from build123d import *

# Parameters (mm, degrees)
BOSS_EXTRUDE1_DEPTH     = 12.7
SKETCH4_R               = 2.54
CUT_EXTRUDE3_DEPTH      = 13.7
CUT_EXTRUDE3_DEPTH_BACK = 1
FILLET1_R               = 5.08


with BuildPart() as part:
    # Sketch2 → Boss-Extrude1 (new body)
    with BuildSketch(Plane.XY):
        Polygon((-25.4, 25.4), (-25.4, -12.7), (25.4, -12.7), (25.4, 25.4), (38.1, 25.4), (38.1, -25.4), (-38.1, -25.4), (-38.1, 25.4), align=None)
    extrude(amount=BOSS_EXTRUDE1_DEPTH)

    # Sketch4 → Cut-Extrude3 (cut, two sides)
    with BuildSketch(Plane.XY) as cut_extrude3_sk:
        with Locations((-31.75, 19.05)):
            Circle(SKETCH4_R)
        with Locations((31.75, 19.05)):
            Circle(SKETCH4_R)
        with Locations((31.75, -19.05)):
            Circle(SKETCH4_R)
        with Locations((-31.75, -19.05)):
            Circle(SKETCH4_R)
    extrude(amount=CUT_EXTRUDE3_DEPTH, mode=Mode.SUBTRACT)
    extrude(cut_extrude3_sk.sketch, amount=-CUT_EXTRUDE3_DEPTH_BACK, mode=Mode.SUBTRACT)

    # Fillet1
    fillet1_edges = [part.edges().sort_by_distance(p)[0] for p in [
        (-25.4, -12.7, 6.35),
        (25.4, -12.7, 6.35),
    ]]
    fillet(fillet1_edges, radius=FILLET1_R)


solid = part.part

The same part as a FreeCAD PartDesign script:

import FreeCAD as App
import Part
import Sketcher
from FreeCAD import Vector
Q = App.Units.Quantity


def edges_at(feature, points):
    """Names of the edges that pass closest to the given points."""
    edges = feature.Shape.Edges
    near = lambda p: min(range(len(edges)), key=lambda i: edges[i].distToShape(Part.Vertex(*p))[0])
    return sorted({f"Edge{near(p) + 1}" for p in points})


def add_polygon(sketch, points):
    """Adds a closed chain of lines whose ends are joined by coincident constraints."""
    first, n = sketch.GeometryCount, len(points)
    for a, b in zip(points, points[1:] + points[:1]):
        sketch.addGeometry(Part.LineSegment(App.Vector(*a, 0), App.Vector(*b, 0)), False)
    for i in range(n):
        sketch.addConstraint(Sketcher.Constraint("Coincident", first + i, 2, first + (i + 1) % n, 1))

doc = App.newDocument("Part")
body = doc.addObject("PartDesign::Body", "Body")

sketch1 = body.newObject("Sketcher::SketchObject", "Sketch")
sketch1.AttachmentSupport = (doc.getObject("XY_Plane"), [""])
sketch1.MapMode = "FlatFace"
add_polygon(sketch1, [(-25, -13), (-25, 25), (-38, 25), (-38, -25), (38, -25), (38, 25), (25, 25), (25, -13)])
sketch1.addConstraint([
    Sketcher.Constraint("Vertical", 0),
    Sketcher.Constraint("Horizontal", 1),
    Sketcher.Constraint("Vertical", 2),
    Sketcher.Constraint("Horizontal", 3),
    Sketcher.Constraint("Vertical", 4),
    Sketcher.Constraint("Horizontal", 5),
    Sketcher.Constraint("Vertical", 6),
    Sketcher.Constraint("Horizontal", 7),
    Sketcher.Constraint("Symmetric", 1, 2, 3, 2, -1, 1),
    Sketcher.Constraint("Symmetric", 0, 2, 5, 2, -2),
    Sketcher.Constraint("Equal", 7, 2),
    Sketcher.Constraint("DistanceX", 3, 1, 3, 2, Q("3 in")),
    Sketcher.Constraint("DistanceX", 7, 2, 7, 1, Q("2 in")),
    Sketcher.Constraint("DistanceY", 0, 1, 0, 2, Q("1.5 in")),
])
pad1 = body.newObject("PartDesign::Pad", "Pad")
pad1.Profile = sketch1
pad1.Length = Q("0.5 in")

sketch2 = body.newObject("Sketcher::SketchObject", "Sketch001")
sketch2.AttachmentSupport = (doc.getObject("XY_Plane"), [""])
sketch2.MapMode = "FlatFace"
sketch2.addGeometry([
    Part.Circle(Vector(-31.8, 19.1, 0), Vector(0, 0, 1), 2.5),
    Part.Circle(Vector(31.8, 19.1, 0), Vector(0, 0, 1), 2.5),
    Part.Circle(Vector(31.8, -19.1, 0), Vector(0, 0, 1), 2.5),
    Part.Circle(Vector(-31.8, -19.1, 0), Vector(0, 0, 1), 2.5),
], False)
sketch2.addConstraint([
    Sketcher.Constraint("Equal", 0, 1),
    Sketcher.Constraint("Equal", 1, 2),
    Sketcher.Constraint("Equal", 2, 3),
    Sketcher.Constraint("Symmetric", 0, 3, 2, 3, -1, 1),
    Sketcher.Constraint("Symmetric", 1, 3, 3, 3, -1, 1),
    Sketcher.Constraint("Symmetric", 0, 3, 1, 3, -2),
    Sketcher.Constraint("Diameter", 0, Q("0.2 in")),
    Sketcher.Constraint("DistanceX", 0, 3, 1, 3, Q("2.5 in")),
    Sketcher.Constraint("DistanceY", 2, 3, 1, 3, Q("1.5 in")),
])
pocket1 = body.newObject("PartDesign::Pocket", "Pocket")
pocket1.Profile = sketch2
pocket1.Type = "ThroughAll"
pocket1.Midplane = True
doc.recompute()

fillet = body.newObject("PartDesign::Fillet", "Fillet")
fillet.Base = (pocket1, edges_at(pocket1, [(-25.4, -12.7, 6.35), (25.4, -12.7, 6.35)]))
fillet.Radius = Q("0.2 in")

doc.recompute()
